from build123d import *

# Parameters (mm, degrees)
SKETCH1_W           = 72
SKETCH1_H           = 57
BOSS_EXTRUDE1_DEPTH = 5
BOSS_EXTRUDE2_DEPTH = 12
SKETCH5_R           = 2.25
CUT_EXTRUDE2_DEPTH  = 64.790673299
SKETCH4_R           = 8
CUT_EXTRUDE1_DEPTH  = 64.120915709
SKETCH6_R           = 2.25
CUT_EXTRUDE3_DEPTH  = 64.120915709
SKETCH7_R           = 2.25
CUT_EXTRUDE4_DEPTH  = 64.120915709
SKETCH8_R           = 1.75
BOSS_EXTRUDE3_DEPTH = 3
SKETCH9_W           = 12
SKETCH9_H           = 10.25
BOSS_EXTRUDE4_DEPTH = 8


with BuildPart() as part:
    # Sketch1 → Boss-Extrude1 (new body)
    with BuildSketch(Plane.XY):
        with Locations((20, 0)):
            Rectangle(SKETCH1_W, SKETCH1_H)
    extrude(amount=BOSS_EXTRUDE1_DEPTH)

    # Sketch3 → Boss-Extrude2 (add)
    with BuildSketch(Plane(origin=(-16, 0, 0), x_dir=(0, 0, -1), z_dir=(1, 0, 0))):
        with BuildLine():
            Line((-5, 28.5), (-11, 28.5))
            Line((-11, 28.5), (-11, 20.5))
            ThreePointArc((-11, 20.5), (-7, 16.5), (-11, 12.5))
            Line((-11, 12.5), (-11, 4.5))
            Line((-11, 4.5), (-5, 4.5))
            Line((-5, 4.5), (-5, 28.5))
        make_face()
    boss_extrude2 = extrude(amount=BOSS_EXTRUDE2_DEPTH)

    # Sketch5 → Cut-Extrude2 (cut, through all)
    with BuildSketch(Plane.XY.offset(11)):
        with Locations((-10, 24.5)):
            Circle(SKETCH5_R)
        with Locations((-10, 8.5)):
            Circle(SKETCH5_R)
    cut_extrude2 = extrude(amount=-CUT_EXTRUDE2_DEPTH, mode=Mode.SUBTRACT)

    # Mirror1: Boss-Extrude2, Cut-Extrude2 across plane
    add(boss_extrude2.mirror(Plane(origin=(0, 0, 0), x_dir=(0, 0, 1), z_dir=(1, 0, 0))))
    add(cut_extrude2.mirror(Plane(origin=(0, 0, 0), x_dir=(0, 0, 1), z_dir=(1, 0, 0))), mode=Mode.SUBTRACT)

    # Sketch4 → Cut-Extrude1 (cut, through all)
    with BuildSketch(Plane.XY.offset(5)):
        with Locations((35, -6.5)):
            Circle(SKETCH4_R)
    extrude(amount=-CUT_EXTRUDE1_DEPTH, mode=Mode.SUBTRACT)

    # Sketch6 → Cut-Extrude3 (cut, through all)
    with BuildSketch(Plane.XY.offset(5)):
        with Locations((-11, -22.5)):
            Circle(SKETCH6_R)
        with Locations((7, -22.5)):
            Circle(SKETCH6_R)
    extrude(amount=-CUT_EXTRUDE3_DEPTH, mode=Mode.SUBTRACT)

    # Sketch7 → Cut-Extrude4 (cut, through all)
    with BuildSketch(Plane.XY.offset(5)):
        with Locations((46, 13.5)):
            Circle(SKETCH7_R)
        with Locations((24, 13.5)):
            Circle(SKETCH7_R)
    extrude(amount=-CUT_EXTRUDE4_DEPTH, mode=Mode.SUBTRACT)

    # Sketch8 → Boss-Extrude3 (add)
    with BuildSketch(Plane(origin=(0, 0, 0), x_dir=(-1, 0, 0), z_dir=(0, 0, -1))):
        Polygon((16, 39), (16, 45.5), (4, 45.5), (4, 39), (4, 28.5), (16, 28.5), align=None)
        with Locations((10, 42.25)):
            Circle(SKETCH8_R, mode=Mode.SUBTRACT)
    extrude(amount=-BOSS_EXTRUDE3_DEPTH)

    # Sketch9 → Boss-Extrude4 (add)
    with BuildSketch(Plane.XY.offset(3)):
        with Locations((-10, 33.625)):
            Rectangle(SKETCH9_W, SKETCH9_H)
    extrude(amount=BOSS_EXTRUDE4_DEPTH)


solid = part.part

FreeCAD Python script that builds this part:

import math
import FreeCAD as App
import Part
import Sketcher

V = App.Vector
Q = App.Units.Quantity

doc = App.newDocument("Part")
body = doc.addObject("PartDesign::Body", "Body")

sketch1 = body.newObject("Sketcher::SketchObject", "Sketch")
sketch1.AttachmentSupport = (doc.getObject("XY_Plane"), [""])
sketch1.MapMode = "FlatFace"
sketch1.addGeometry(Part.LineSegment(V(-16, 28.5, 0), V(-16, -28.5, 0)), False)
sketch1.addGeometry(Part.LineSegment(V(-16, -28.5, 0), V(56, -28.5, 0)), False)
sketch1.addGeometry(Part.LineSegment(V(56, -28.5, 0), V(56, 28.5, 0)), False)
sketch1.addGeometry(Part.LineSegment(V(56, 28.5, 0), V(-16, 28.5, 0)), False)
sketch1.addConstraint(Sketcher.Constraint("Coincident", 0, 2, 1, 1))
sketch1.addConstraint(Sketcher.Constraint("Coincident", 1, 2, 2, 1))
sketch1.addConstraint(Sketcher.Constraint("Coincident", 2, 2, 3, 1))
sketch1.addConstraint(Sketcher.Constraint("Coincident", 3, 2, 0, 1))
sketch1.addConstraint(Sketcher.Constraint("Vertical", 0))
sketch1.addConstraint(Sketcher.Constraint("Horizontal", 1))
sketch1.addConstraint(Sketcher.Constraint("Vertical", 2))
sketch1.addConstraint(Sketcher.Constraint("Horizontal", 3))
sketch1.addConstraint(Sketcher.Constraint("DistanceX", 1, 1, 1, 2, Q("72 mm")))
sketch1.addConstraint(Sketcher.Constraint("DistanceY", 0, 2, 0, 1, Q("57 mm")))
sketch1.addConstraint(Sketcher.Constraint("DistanceX", 0, 2, -1, 1, Q("16 mm")))
sketch1.addConstraint(Sketcher.Constraint("DistanceY", 0, 2, -1, 1, Q("28.5 mm")))
pad1 = body.newObject("PartDesign::Pad", "Pad")
pad1.Profile = sketch1
pad1.Length = 5

sketch2 = body.newObject("Sketcher::SketchObject", "Sketch001")
sketch2.AttachmentSupport = (doc.getObject("YZ_Plane"), [""])
sketch2.MapMode = "FlatFace"
sketch2.AttachmentOffset = App.Placement(V(0, 0, -16), App.Rotation())
sketch2.addGeometry(Part.LineSegment(V(28.5, 5, 0), V(28.5, 11, 0)), False)
sketch2.addGeometry(Part.LineSegment(V(28.5, 11, 0), V(20.5, 11, 0)), False)
sketch2.addGeometry(Part.ArcOfCircle(Part.Circle(V(16.5, 11, 0), V(0, 0, 1), 4), math.radians(180), math.radians(360)), False)
sketch2.addGeometry(Part.LineSegment(V(12.5, 11, 0), V(4.5, 11, 0)), False)
sketch2.addGeometry(Part.LineSegment(V(4.5, 11, 0), V(4.5, 5, 0)), False)
sketch2.addGeometry(Part.LineSegment(V(4.5, 5, 0), V(28.5, 5, 0)), False)
sketch2.addConstraint(Sketcher.Constraint("Coincident", 0, 2, 1, 1))
sketch2.addConstraint(Sketcher.Constraint("Coincident", 1, 2, 2, 2))
sketch2.addConstraint(Sketcher.Constraint("Coincident", 2, 1, 3, 1))
sketch2.addConstraint(Sketcher.Constraint("Coincident", 3, 2, 4, 1))
sketch2.addConstraint(Sketcher.Constraint("Coincident", 4, 2, 5, 1))
sketch2.addConstraint(Sketcher.Constraint("Coincident", 5, 2, 0, 1))
sketch2.addConstraint(Sketcher.Constraint("Vertical", 0))
sketch2.addConstraint(Sketcher.Constraint("Horizontal", 1))
sketch2.addConstraint(Sketcher.Constraint("Horizontal", 3))
sketch2.addConstraint(Sketcher.Constraint("Vertical", 4))
sketch2.addConstraint(Sketcher.Constraint("Horizontal", 5))
sketch2.addConstraint(Sketcher.Constraint("Horizontal", 2, 3, 0, 2))
sketch2.addConstraint(Sketcher.Constraint("Horizontal", 1, 2, 2, 1))
sketch2.addConstraint(Sketcher.Constraint("Equal", 1, 3))
sketch2.addConstraint(Sketcher.Constraint("Radius", 2, Q("4 mm")))
sketch2.addConstraint(Sketcher.Constraint("DistanceX", 1, 2, 1, 1, Q("8 mm")))
sketch2.addConstraint(Sketcher.Constraint("DistanceY", 0, 1, 0, 2, Q("6 mm")))
sketch2.addConstraint(Sketcher.Constraint("DistanceY", -1, 1, 2, 3, Q("11 mm")))
sketch2.addConstraint(Sketcher.Constraint("DistanceX", -1, 1, 2, 3, Q("16.5 mm")))
pad2 = body.newObject("PartDesign::Pad", "Pad001")
pad2.Profile = sketch2
pad2.Length = 12

sketch3 = body.newObject("Sketcher::SketchObject", "Sketch002")
sketch3.AttachmentSupport = (doc.getObject("XY_Plane"), [""])
sketch3.MapMode = "FlatFace"
sketch3.AttachmentOffset = App.Placement(V(0, 0, 11), App.Rotation())
sketch3.addGeometry(Part.Circle(V(-10, 24.5, 0), V(0, 0, 1), 2.25), False)
sketch3.addGeometry(Part.Circle(V(-10, 8.5, 0), V(0, 0, 1), 2.25), False)
sketch3.addConstraint(Sketcher.Constraint("Equal", 0, 1))
sketch3.addConstraint(Sketcher.Constraint("Vertical", 0, 3, 1, 3))
sketch3.addConstraint(Sketcher.Constraint("Diameter", 0, Q("4.5 mm")))
sketch3.addConstraint(Sketcher.Constraint("DistanceX", 0, 3, -1, 1, Q("10 mm")))
sketch3.addConstraint(Sketcher.Constraint("DistanceY", 1, 3, 0, 3, Q("16 mm")))
sketch3.addConstraint(Sketcher.Constraint("DistanceY", -1, 1, 0, 3, Q("24.5 mm")))
pocket1 = body.newObject("PartDesign::Pocket", "Pocket")
pocket1.Profile = sketch3
pocket1.Type = "ThroughAll"
doc.recompute()

mirrored = body.newObject("PartDesign::Mirrored", "Mirrored")
mirrored.Originals = [pad2, pocket1]
mirrored.MirrorPlane = (doc.getObject("YZ_Plane"), [""])
body.Tip = mirrored

sketch4 = body.newObject("Sketcher::SketchObject", "Sketch003")
sketch4.AttachmentSupport = (doc.getObject("XY_Plane"), [""])
sketch4.MapMode = "FlatFace"
sketch4.AttachmentOffset = App.Placement(V(0, 0, 5), App.Rotation())
sketch4.addGeometry(Part.Circle(V(35, -6.5, 0), V(0, 0, 1), 8), False)
sketch4.addConstraint(Sketcher.Constraint("Diameter", 0, Q("16 mm")))
sketch4.addConstraint(Sketcher.Constraint("DistanceX", -1, 1, 0, 3, Q("35 mm")))
sketch4.addConstraint(Sketcher.Constraint("DistanceY", 0, 3, -1, 1, Q("6.5 mm")))
pocket2 = body.newObject("PartDesign::Pocket", "Pocket001")
pocket2.Profile = sketch4
pocket2.Type = "ThroughAll"

sketch5 = body.newObject("Sketcher::SketchObject", "Sketch004")
sketch5.AttachmentSupport = (doc.getObject("XY_Plane"), [""])
sketch5.MapMode = "FlatFace"
sketch5.AttachmentOffset = App.Placement(V(0, 0, 5), App.Rotation())
sketch5.addGeometry(Part.Circle(V(-11, -22.5, 0), V(0, 0, 1), 2.25), False)
sketch5.addGeometry(Part.Circle(V(7, -22.5, 0), V(0, 0, 1), 2.25), False)
sketch5.addConstraint(Sketcher.Constraint("Equal", 0, 1))
sketch5.addConstraint(Sketcher.Constraint("Horizontal", 0, 3, 1, 3))
sketch5.addConstraint(Sketcher.Constraint("Diameter", 0, Q("4.5 mm")))
sketch5.addConstraint(Sketcher.Constraint("DistanceX", 0, 3, -1, 1, Q("11 mm")))
sketch5.addConstraint(Sketcher.Constraint("DistanceX", -1, 1, 1, 3, Q("7 mm")))
sketch5.addConstraint(Sketcher.Constraint("DistanceY", 0, 3, -1, 1, Q("22.5 mm")))
pocket3 = body.newObject("PartDesign::Pocket", "Pocket002")
pocket3.Profile = sketch5
pocket3.Type = "ThroughAll"

sketch6 = body.newObject("Sketcher::SketchObject", "Sketch005")
sketch6.AttachmentSupport = (doc.getObject("XY_Plane"), [""])
sketch6.MapMode = "FlatFace"
sketch6.AttachmentOffset = App.Placement(V(0, 0, 5), App.Rotation())
sketch6.addGeometry(Part.Circle(V(46, 13.5, 0), V(0, 0, 1), 2.25), False)
sketch6.addGeometry(Part.Circle(V(24, 13.5, 0), V(0, 0, 1), 2.25), False)
sketch6.addConstraint(Sketcher.Constraint("Equal", 0, 1))
sketch6.addConstraint(Sketcher.Constraint("Horizontal", 0, 3, 1, 3))
sketch6.addConstraint(Sketcher.Constraint("Diameter", 0, Q("4.5 mm")))
sketch6.addConstraint(Sketcher.Constraint("DistanceX", -1, 1, 0, 3, Q("46 mm")))
sketch6.addConstraint(Sketcher.Constraint("DistanceX", -1, 1, 1, 3, Q("24 mm")))
sketch6.addConstraint(Sketcher.Constraint("DistanceY", -1, 1, 0, 3, Q("13.5 mm")))
pocket4 = body.newObject("PartDesign::Pocket", "Pocket003")
pocket4.Profile = sketch6
pocket4.Type = "ThroughAll"

sketch7 = body.newObject("Sketcher::SketchObject", "Sketch006")
sketch7.AttachmentSupport = (doc.getObject("XY_Plane"), [""])
sketch7.MapMode = "FlatFace"
sketch7.addGeometry(Part.LineSegment(V(-16, 45.5, 0), V(-4, 45.5, 0)), False)
sketch7.addGeometry(Part.LineSegment(V(-4, 45.5, 0), V(-4, 28.5, 0)), False)
sketch7.addGeometry(Part.LineSegment(V(-4, 28.5, 0), V(-16, 28.5, 0)), False)
sketch7.addGeometry(Part.LineSegment(V(-16, 28.5, 0), V(-16, 45.5, 0)), False)
sketch7.addGeometry(Part.Circle(V(-10, 42.25, 0), V(0, 0, 1), 1.75), False)
sketch7.addConstraint(Sketcher.Constraint("Coincident", 0, 2, 1, 1))
sketch7.addConstraint(Sketcher.Constraint("Coincident", 1, 2, 2, 1))
sketch7.addConstraint(Sketcher.Constraint("Coincident", 2, 2, 3, 1))
sketch7.addConstraint(Sketcher.Constraint("Coincident", 3, 2, 0, 1))
sketch7.addConstraint(Sketcher.Constraint("Horizontal", 0))
sketch7.addConstraint(Sketcher.Constraint("Vertical", 1))
sketch7.addConstraint(Sketcher.Constraint("Horizontal", 2))
sketch7.addConstraint(Sketcher.Constraint("Vertical", 3))
sketch7.addConstraint(Sketcher.Constraint("Diameter", 4, Q("3.5 mm")))
sketch7.addConstraint(Sketcher.Constraint("DistanceX", 0, 1, 0, 2, Q("12 mm")))
sketch7.addConstraint(Sketcher.Constraint("DistanceY", 1, 2, 1, 1, Q("17 mm")))
sketch7.addConstraint(Sketcher.Constraint("DistanceX", 4, 3, -1, 1, Q("10 mm")))
sketch7.addConstraint(Sketcher.Constraint("DistanceX", 0, 2, -1, 1, Q("4 mm")))
sketch7.addConstraint(Sketcher.Constraint("DistanceY", -1, 1, 0, 2, Q("45.5 mm")))
sketch7.addConstraint(Sketcher.Constraint("DistanceY", -1, 1, 4, 3, Q("42.25 mm")))
pad3 = body.newObject("PartDesign::Pad", "Pad002")
pad3.Profile = sketch7
pad3.Length = 3

sketch8 = body.newObject("Sketcher::SketchObject", "Sketch007")
sketch8.AttachmentSupport = (doc.getObject("XY_Plane"), [""])
sketch8.MapMode = "FlatFace"
sketch8.AttachmentOffset = App.Placement(V(0, 0, 3), App.Rotation())
sketch8.addGeometry(Part.LineSegment(V(-16, 38.75, 0), V(-16, 28.5, 0)), False)
sketch8.addGeometry(Part.LineSegment(V(-16, 28.5, 0), V(-4, 28.5, 0)), False)
sketch8.addGeometry(Part.LineSegment(V(-4, 28.5, 0), V(-4, 38.75, 0)), False)
sketch8.addGeometry(Part.LineSegment(V(-4, 38.75, 0), V(-16, 38.75, 0)), False)
sketch8.addConstraint(Sketcher.Constraint("Coincident", 0, 2, 1, 1))
sketch8.addConstraint(Sketcher.Constraint("Coincident", 1, 2, 2, 1))
sketch8.addConstraint(Sketcher.Constraint("Coincident", 2, 2, 3, 1))
sketch8.addConstraint(Sketcher.Constraint("Coincident", 3, 2, 0, 1))
sketch8.addConstraint(Sketcher.Constraint("Vertical", 0))
sketch8.addConstraint(Sketcher.Constraint("Horizontal", 1))
sketch8.addConstraint(Sketcher.Constraint("Vertical", 2))
sketch8.addConstraint(Sketcher.Constraint("Horizontal", 3))
sketch8.addConstraint(Sketcher.Constraint("DistanceX", 1, 1, 1, 2, Q("12 mm")))
sketch8.addConstraint(Sketcher.Constraint("DistanceX", 0, 2, -1, 1, Q("16 mm")))
sketch8.addConstraint(Sketcher.Constraint("DistanceY", 0, 2, 0, 1, Q("10.25 mm")))
sketch8.addConstraint(Sketcher.Constraint("DistanceY", -1, 1, 0, 2, Q("28.5 mm")))
pad4 = body.newObject("PartDesign::Pad", "Pad003")
pad4.Profile = sketch8
pad4.Length = 8

doc.recompute()
